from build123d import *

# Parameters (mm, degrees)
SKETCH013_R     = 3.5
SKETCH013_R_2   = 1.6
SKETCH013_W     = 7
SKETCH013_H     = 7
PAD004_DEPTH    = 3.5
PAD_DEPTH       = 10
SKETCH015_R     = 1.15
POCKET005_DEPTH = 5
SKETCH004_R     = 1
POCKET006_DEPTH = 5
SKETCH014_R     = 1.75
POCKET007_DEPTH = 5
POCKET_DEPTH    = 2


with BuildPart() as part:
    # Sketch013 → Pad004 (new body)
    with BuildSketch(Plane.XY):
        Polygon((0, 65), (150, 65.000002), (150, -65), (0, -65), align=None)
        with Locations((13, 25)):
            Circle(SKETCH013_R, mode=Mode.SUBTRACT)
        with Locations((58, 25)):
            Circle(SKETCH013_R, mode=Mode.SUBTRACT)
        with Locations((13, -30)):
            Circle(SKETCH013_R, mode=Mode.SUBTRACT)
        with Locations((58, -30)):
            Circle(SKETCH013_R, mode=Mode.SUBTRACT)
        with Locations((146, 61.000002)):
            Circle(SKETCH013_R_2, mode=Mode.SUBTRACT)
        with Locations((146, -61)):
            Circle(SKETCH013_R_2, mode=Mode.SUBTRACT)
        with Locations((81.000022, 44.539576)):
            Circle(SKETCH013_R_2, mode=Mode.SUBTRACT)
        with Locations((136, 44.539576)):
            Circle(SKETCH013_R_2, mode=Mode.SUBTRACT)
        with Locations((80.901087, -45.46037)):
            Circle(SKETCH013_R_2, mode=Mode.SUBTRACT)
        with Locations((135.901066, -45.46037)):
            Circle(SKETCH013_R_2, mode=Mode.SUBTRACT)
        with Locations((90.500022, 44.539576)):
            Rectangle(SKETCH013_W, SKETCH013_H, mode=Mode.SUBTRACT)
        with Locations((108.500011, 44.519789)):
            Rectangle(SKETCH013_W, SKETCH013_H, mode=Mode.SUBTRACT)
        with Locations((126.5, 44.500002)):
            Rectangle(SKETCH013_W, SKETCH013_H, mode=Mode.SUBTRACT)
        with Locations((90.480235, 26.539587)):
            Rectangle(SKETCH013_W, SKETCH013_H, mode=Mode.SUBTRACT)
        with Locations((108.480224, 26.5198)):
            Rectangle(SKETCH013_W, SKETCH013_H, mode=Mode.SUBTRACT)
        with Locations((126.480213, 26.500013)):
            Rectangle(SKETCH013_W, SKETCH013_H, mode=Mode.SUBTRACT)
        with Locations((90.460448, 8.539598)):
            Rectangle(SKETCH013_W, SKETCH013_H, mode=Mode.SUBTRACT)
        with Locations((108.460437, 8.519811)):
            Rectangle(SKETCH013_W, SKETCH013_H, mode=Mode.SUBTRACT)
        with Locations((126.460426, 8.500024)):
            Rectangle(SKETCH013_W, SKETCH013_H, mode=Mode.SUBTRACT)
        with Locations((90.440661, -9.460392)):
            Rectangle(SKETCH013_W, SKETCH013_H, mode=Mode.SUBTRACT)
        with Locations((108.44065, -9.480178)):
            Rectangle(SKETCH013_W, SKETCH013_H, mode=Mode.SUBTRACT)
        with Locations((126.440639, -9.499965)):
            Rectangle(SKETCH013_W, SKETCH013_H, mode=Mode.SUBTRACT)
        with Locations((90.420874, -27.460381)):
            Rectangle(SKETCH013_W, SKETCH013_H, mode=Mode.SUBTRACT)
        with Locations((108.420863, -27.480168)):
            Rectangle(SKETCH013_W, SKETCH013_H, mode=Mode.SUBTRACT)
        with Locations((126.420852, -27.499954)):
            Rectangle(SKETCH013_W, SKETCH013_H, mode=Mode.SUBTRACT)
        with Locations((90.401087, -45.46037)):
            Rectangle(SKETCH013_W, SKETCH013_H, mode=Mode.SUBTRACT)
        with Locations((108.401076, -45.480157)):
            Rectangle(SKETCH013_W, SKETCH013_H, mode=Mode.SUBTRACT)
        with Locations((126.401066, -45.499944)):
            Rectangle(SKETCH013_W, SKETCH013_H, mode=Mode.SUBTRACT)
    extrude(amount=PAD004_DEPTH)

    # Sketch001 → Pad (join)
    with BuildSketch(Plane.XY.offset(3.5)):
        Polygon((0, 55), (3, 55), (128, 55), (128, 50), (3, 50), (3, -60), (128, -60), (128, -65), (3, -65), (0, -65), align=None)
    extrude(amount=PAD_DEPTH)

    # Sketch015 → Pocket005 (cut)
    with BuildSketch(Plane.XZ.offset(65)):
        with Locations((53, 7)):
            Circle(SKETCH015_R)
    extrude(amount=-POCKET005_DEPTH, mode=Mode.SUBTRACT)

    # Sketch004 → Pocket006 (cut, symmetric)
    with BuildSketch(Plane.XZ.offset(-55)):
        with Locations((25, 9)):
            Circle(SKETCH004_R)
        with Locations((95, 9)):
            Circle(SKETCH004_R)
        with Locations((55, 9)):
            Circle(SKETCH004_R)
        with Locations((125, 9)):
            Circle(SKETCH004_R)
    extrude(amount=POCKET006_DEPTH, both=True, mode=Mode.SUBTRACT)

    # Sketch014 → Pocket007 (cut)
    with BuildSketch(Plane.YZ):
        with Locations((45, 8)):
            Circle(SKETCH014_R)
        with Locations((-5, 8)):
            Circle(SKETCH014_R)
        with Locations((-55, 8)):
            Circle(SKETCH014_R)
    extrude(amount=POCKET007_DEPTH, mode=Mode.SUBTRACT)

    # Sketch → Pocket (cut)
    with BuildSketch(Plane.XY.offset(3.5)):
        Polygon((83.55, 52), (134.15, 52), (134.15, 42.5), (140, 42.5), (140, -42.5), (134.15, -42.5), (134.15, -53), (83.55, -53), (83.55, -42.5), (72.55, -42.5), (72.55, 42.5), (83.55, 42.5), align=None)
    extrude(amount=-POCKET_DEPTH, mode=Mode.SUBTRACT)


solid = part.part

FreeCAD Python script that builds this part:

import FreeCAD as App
import Part
import Sketcher

V = App.Vector


def add_polygon(sketch, points):
    """Adds a closed chain of lines whose ends are joined by coincident constraints."""
    first, n = sketch.GeometryCount, len(points)
    for a, b in zip(points, points[1:] + points[:1]):
        sketch.addGeometry(Part.LineSegment(App.Vector(*a, 0), App.Vector(*b, 0)), False)
    for i in range(n):
        sketch.addConstraint(Sketcher.Constraint("Coincident", first + i, 2, first + (i + 1) % n, 1))

doc = App.newDocument("Part")
params = doc.addObject("Spreadsheet::Sheet", "Params")
for row, (alias, value) in enumerate([
    ("sketch1_diameter", "7 mm"),
    ("sketch1_diameter2", "3.2 mm"),
    ("sketch1_width", "150 mm"),
    ("sketch1_width2", "7 mm"),
    ("sketch1_height", "130 mm"),
    ("pad1_length", "3.5 mm"),
    ("sketch2_width", "128 mm"),
    ("sketch2_width2", "125 mm"),
    ("sketch2_height", "120 mm"),
    ("sketch2_height2", "5 mm"),
    ("pad2_length", "10 mm"),
    ("sketch3_diameter", "2.3 mm"),
    ("pocket1_length", "5 mm"),
    ("sketch4_diameter", "2 mm"),
    ("pocket2_length", "10 mm"),
    ("sketch5_diameter", "3.5 mm"),
    ("pocket3_length", "5 mm"),
    ("sketch6_width", "11 mm"),
    ("sketch6_height", "85 mm"),
    ("sketch6_width2", "50.6 mm"),
    ("sketch6_height2", "9.5 mm"),
    ("sketch6_height3", "10.5 mm"),
    ("pocket4_length", "2 mm"),
], start=1):
    params.set(f"A{row}", alias)
    params.set(f"B{row}", "=" + value)
    params.setAlias(f"B{row}", alias)

body = doc.addObject("PartDesign::Body", "Body")

# Sketch on XY plane
sketch1 = body.newObject("Sketcher::SketchObject", "Sketch")
sketch1.AttachmentSupport = (doc.getObject("XY_Plane"), [""])
sketch1.MapMode = "FlatFace"
add_polygon(sketch1, [(150, 65), (0, 65), (0, -65), (150, -65)])  # lines 0-3
sketch1.addGeometry(Part.Circle(V(146, -61, 0), V(0, 0, 1), 1.6), False)  # 4
sketch1.addGeometry(Part.Circle(V(135.9, -45.5, 0), V(0, 0, 1), 1.6), False)  # 5
add_polygon(sketch1, [(122.9, -49), (122.9, -42), (129.9, -42), (129.9, -49)])  # lines 6-9
add_polygon(sketch1, [(104.9, -49), (104.9, -42), (111.9, -42), (111.9, -49)])  # lines 10-13
add_polygon(sketch1, [(86.9, -49), (86.9, -42), (93.9, -42), (93.9, -49)])  # lines 14-17
sketch1.addGeometry(Part.Circle(V(80.9, -45.5, 0), V(0, 0, 1), 1.6), False)  # 18
add_polygon(sketch1, [(122.9, -31), (122.9, -24), (129.9, -24), (129.9, -31)])  # lines 19-22
add_polygon(sketch1, [(122.9, -13), (122.9, -6), (129.9, -6), (129.9, -13)])  # lines 23-26
add_polygon(sketch1, [(104.9, -31), (104.9, -24), (111.9, -24), (111.9, -31)])  # lines 27-30
add_polygon(sketch1, [(86.9, -31), (86.9, -24), (93.9, -24), (93.9, -31)])  # lines 31-34
add_polygon(sketch1, [(104.9, -13), (104.9, -6), (111.9, -6), (111.9, -13)])  # lines 35-38
add_polygon(sketch1, [(86.9, -13), (86.9, -6), (93.9, -6), (93.9, -13)])  # lines 39-42
sketch1.addGeometry(Part.Circle(V(58, -30, 0), V(0, 0, 1), 3.5), False)  # 43
sketch1.addGeometry(Part.Circle(V(13, -30, 0), V(0, 0, 1), 3.5), False)  # 44
add_polygon(sketch1, [(123, 5), (123, 12), (130, 12), (130, 5)])  # lines 45-48
add_polygon(sketch1, [(123, 23), (123, 30), (130, 30), (130, 23)])  # lines 49-52
add_polygon(sketch1, [(105, 5), (105, 12), (112, 12), (112, 5)])  # lines 53-56
add_polygon(sketch1, [(87, 5), (87, 12), (94, 12), (94, 5)])  # lines 57-60
add_polygon(sketch1, [(105, 23), (105, 30), (112, 30), (112, 23)])  # lines 61-64
add_polygon(sketch1, [(87, 23), (87, 30), (94, 30), (94, 23)])  # lines 65-68
sketch1.addGeometry(Part.Circle(V(136, 44.5, 0), V(0, 0, 1), 1.6), False)  # 69
add_polygon(sketch1, [(123, 41), (123, 48), (130, 48), (130, 41)])  # lines 70-73
sketch1.addGeometry(Part.Circle(V(146, 61, 0), V(0, 0, 1), 1.6), False)  # 74
add_polygon(sketch1, [(105, 41), (105, 48), (112, 48), (112, 41)])  # lines 75-78
add_polygon(sketch1, [(87, 41), (87, 48), (94, 48), (94, 41)])  # lines 79-82
sketch1.addGeometry(Part.Circle(V(81, 44.5, 0), V(0, 0, 1), 1.6), False)  # 83
sketch1.addGeometry(Part.Circle(V(58, 25, 0), V(0, 0, 1), 3.5), False)  # 84
sketch1.addGeometry(Part.Circle(V(13, 25, 0), V(0, 0, 1), 3.5), False)  # 85
sketch1.addConstraint([
    Sketcher.Constraint("Horizontal", 0),
    Sketcher.Constraint("Vertical", 1),
    Sketcher.Constraint("Horizontal", 2),
    Sketcher.Constraint("Vertical", 3),
    Sketcher.Constraint("Vertical", 6),
    Sketcher.Constraint("Horizontal", 7),
    Sketcher.Constraint("Vertical", 8),
    Sketcher.Constraint("Horizontal", 9),
    Sketcher.Constraint("Vertical", 10),
    Sketcher.Constraint("Horizontal", 11),
    Sketcher.Constraint("Vertical", 12),
    Sketcher.Constraint("Horizontal", 13),
    Sketcher.Constraint("Vertical", 14),
    Sketcher.Constraint("Horizontal", 15),
    Sketcher.Constraint("Vertical", 16),
    Sketcher.Constraint("Horizontal", 17),
    Sketcher.Constraint("Vertical", 19),
    Sketcher.Constraint("Horizontal", 20),
    Sketcher.Constraint("Vertical", 21),
    Sketcher.Constraint("Horizontal", 22),
    Sketcher.Constraint("Vertical", 23),
    Sketcher.Constraint("Horizontal", 24),
    Sketcher.Constraint("Vertical", 25),
    Sketcher.Constraint("Horizontal", 26),
    Sketcher.Constraint("Vertical", 27),
    Sketcher.Constraint("Horizontal", 28),
    Sketcher.Constraint("Vertical", 29),
    Sketcher.Constraint("Horizontal", 30),
    Sketcher.Constraint("Vertical", 31),
    Sketcher.Constraint("Horizontal", 32),
    Sketcher.Constraint("Vertical", 33),
    Sketcher.Constraint("Horizontal", 34),
    Sketcher.Constraint("Vertical", 35),
    Sketcher.Constraint("Horizontal", 36),
    Sketcher.Constraint("Vertical", 37),
    Sketcher.Constraint("Horizontal", 38),
    Sketcher.Constraint("Vertical", 39),
    Sketcher.Constraint("Horizontal", 40),
    Sketcher.Constraint("Vertical", 41),
    Sketcher.Constraint("Horizontal", 42),
    Sketcher.Constraint("Vertical", 45),
    Sketcher.Constraint("Horizontal", 46),
    Sketcher.Constraint("Vertical", 47),
    Sketcher.Constraint("Horizontal", 48),
    Sketcher.Constraint("Vertical", 49),
    Sketcher.Constraint("Horizontal", 50),
    Sketcher.Constraint("Vertical", 51),
    Sketcher.Constraint("Horizontal", 52),
    Sketcher.Constraint("Vertical", 53),
    Sketcher.Constraint("Horizontal", 54),
    Sketcher.Constraint("Vertical", 55),
    Sketcher.Constraint("Horizontal", 56),
    Sketcher.Constraint("Vertical", 57),
    Sketcher.Constraint("Horizontal", 58),
    Sketcher.Constraint("Vertical", 59),
    Sketcher.Constraint("Horizontal", 60),
    Sketcher.Constraint("Vertical", 61),
    Sketcher.Constraint("Horizontal", 62),
    Sketcher.Constraint("Vertical", 63),
    Sketcher.Constraint("Horizontal", 64),
    Sketcher.Constraint("Vertical", 65),
    Sketcher.Constraint("Horizontal", 66),
    Sketcher.Constraint("Vertical", 67),
    Sketcher.Constraint("Horizontal", 68),
    Sketcher.Constraint("Vertical", 70),
    Sketcher.Constraint("Horizontal", 71),
    Sketcher.Constraint("Vertical", 72),
    Sketcher.Constraint("Horizontal", 73),
    Sketcher.Constraint("Vertical", 75),
    Sketcher.Constraint("Horizontal", 76),
    Sketcher.Constraint("Vertical", 77),
    Sketcher.Constraint("Horizontal", 78),
    Sketcher.Constraint("Vertical", 79),
    Sketcher.Constraint("Horizontal", 80),
    Sketcher.Constraint("Vertical", 81),
    Sketcher.Constraint("Horizontal", 82),
    Sketcher.Constraint("Equal", 4, 5),
    Sketcher.Constraint("Equal", 5, 18),
    Sketcher.Constraint("Equal", 43, 44),
    Sketcher.Constraint("Equal", 18, 69),
    Sketcher.Constraint("Equal", 69, 74),
    Sketcher.Constraint("Equal", 74, 83),
    Sketcher.Constraint("Equal", 44, 84),
    Sketcher.Constraint("Equal", 84, 85),
    Sketcher.Constraint("Symmetric", 0, 2, 1, 2, -1, 1),
    Sketcher.Constraint("Symmetric", 4, 3, 74, 3, -1),
    Sketcher.Constraint("Horizontal", 5, 3, 18, 3),
    Sketcher.Constraint("Horizontal", 43, 3, 44, 3),
    Sketcher.Constraint("Horizontal", 69, 3, 83, 3),
    Sketcher.Constraint("Horizontal", 84, 3, 85, 3),
    Sketcher.Constraint("Vertical", 43, 3, 84, 3),
    Sketcher.Constraint("Vertical", 44, 3, 85, 3),
    Sketcher.Constraint("Equal", 9, 11),
    Sketcher.Constraint("Equal", 13, 15),
    Sketcher.Constraint("Equal", 17, 20),
    Sketcher.Constraint("Equal", 22, 24),
    Sketcher.Constraint("Equal", 26, 28),
    Sketcher.Constraint("Equal", 30, 32),
    Sketcher.Constraint("Equal", 34, 36),
    Sketcher.Constraint("Equal", 38, 40),
    Sketcher.Constraint("Equal", 42, 46),
    Sketcher.Constraint("Equal", 48, 50),
    Sketcher.Constraint("Equal", 52, 54),
    Sketcher.Constraint("Equal", 56, 58),
    Sketcher.Constraint("Equal", 60, 62),
    Sketcher.Constraint("Equal", 64, 66),
    Sketcher.Constraint("Equal", 68, 71),
    Sketcher.Constraint("Equal", 73, 76),
    Sketcher.Constraint("Equal", 78, 80),
    Sketcher.Constraint("Equal", 82, 6),
    Sketcher.Constraint("Equal", 8, 10),
    Sketcher.Constraint("Equal", 12, 14),
    Sketcher.Constraint("Equal", 16, 19),
    Sketcher.Constraint("Equal", 21, 23),
    Sketcher.Constraint("Equal", 25, 27),
    Sketcher.Constraint("Equal", 29, 31),
    Sketcher.Constraint("Equal", 33, 35),
    Sketcher.Constraint("Equal", 37, 39),
    Sketcher.Constraint("Equal", 41, 45),
    Sketcher.Constraint("Equal", 47, 49),
    Sketcher.Constraint("Equal", 51, 53),
    Sketcher.Constraint("Equal", 55, 57),
    Sketcher.Constraint("Equal", 59, 61),
    Sketcher.Constraint("Equal", 63, 65),
    Sketcher.Constraint("Equal", 67, 70),
    Sketcher.Constraint("Equal", 72, 75),
    Sketcher.Constraint("Equal", 77, 79),
    Sketcher.Constraint("Diameter", 43, 7.0),
    Sketcher.Constraint("Diameter", 4, 3.2),
    Sketcher.Constraint("DistanceX", 0, 2, 0, 1, 150.0),
    Sketcher.Constraint("DistanceX", 7, 1, 7, 2, 7.0),
    Sketcher.Constraint("DistanceY", 1, 2, 1, 1, 130.0),
    Sketcher.Constraint("DistanceX", -1, 1, 4, 3, 146.0),
    Sketcher.Constraint("DistanceY", 4, 3, -1, 1, 61.0),
    Sketcher.Constraint("DistanceX", -1, 1, 43, 3, 58.0),
    Sketcher.Constraint("DistanceY", 43, 3, -1, 1, 30.0),
    Sketcher.Constraint("DistanceX", -1, 1, 44, 3, 13.0),
    Sketcher.Constraint("DistanceX", -1, 1, 69, 3, 136.0),
    Sketcher.Constraint("DistanceY", -1, 1, 84, 3, 25.0),
    Sketcher.Constraint("DistanceX", -1, 1, 70, 2, 123.0),
    Sketcher.Constraint("DistanceY", -1, 1, 61, 2, 30.0198),
    Sketcher.Constraint("DistanceY", 5, 3, -1, 1, 45.46037),
    Sketcher.Constraint("DistanceX", -1, 1, 83, 3, 81.000022),
    Sketcher.Constraint("DistanceY", 14, 2, -1, 1, 41.96037),
    Sketcher.Constraint("DistanceX", -1, 1, 19, 2, 122.920852),
    Sketcher.Constraint("DistanceX", -1, 1, 23, 2, 122.940639),
    Sketcher.Constraint("DistanceY", 31, 2, -1, 1, 23.960381),
    Sketcher.Constraint("DistanceX", -1, 1, 35, 2, 104.94065),
    Sketcher.Constraint("DistanceY", 35, 2, -1, 1, 5.980178),
    Sketcher.Constraint("DistanceX", -1, 1, 39, 2, 86.940661),
    Sketcher.Constraint("DistanceY", 39, 2, -1, 1, 5.960392),
    Sketcher.Constraint("DistanceY", -1, 1, 53, 2, 12.019811),
    Sketcher.Constraint("DistanceX", -1, 1, 57, 2, 86.960448),
    Sketcher.Constraint("DistanceX", -1, 1, 75, 2, 105.000011),
    Sketcher.Constraint("DistanceY", -1, 1, 75, 2, 48.019789),
    Sketcher.Constraint("DistanceX", -1, 1, 79, 2, 87.000022),
    Sketcher.Constraint("DistanceX", -1, 1, 5, 3, 135.901066),
    Sketcher.Constraint("DistanceX", -1, 1, 18, 3, 80.901087),
    Sketcher.Constraint("DistanceY", -1, 1, 69, 3, 44.539576),
    Sketcher.Constraint("DistanceX", -1, 1, 6, 2, 122.901066),
    Sketcher.Constraint("DistanceY", 6, 2, -1, 1, 41.999944),
    Sketcher.Constraint("DistanceX", -1, 1, 10, 2, 104.901076),
    Sketcher.Constraint("DistanceY", 10, 2, -1, 1, 41.980157),
    Sketcher.Constraint("DistanceX", -1, 1, 14, 2, 86.901087),
    Sketcher.Constraint("DistanceY", 19, 2, -1, 1, 23.999954),
    Sketcher.Constraint("DistanceY", 23, 2, -1, 1, 5.999965),
    Sketcher.Constraint("DistanceX", -1, 1, 27, 2, 104.920863),
    Sketcher.Constraint("DistanceY", 27, 2, -1, 1, 23.980168),
    Sketcher.Constraint("DistanceX", -1, 1, 31, 2, 86.920874),
    Sketcher.Constraint("DistanceX", -1, 1, 45, 2, 122.960426),
    Sketcher.Constraint("DistanceY", -1, 1, 45, 2, 12.000024),
    Sketcher.Constraint("DistanceX", -1, 1, 49, 2, 122.980213),
    Sketcher.Constraint("DistanceY", -1, 1, 49, 2, 30.000013),
    Sketcher.Constraint("DistanceX", -1, 1, 53, 2, 104.960437),
    Sketcher.Constraint("DistanceY", -1, 1, 57, 2, 12.039598),
    Sketcher.Constraint("DistanceX", -1, 1, 61, 2, 104.980224),
    Sketcher.Constraint("DistanceX", -1, 1, 65, 2, 86.980235),
    Sketcher.Constraint("DistanceY", -1, 1, 65, 2, 30.039587),
    Sketcher.Constraint("DistanceY", -1, 1, 70, 2, 48.000002),
    Sketcher.Constraint("DistanceY", -1, 1, 79, 2, 48.039576),
])
sketch1.setExpression("Constraints[203]", "Params.sketch1_diameter")
sketch1.setExpression("Constraints[204]", "Params.sketch1_diameter2")
sketch1.setExpression("Constraints[205]", "Params.sketch1_width")
sketch1.setExpression("Constraints[206]", "Params.sketch1_width2")
sketch1.setExpression("Constraints[207]", "Params.sketch1_height")
pad1 = body.newObject("PartDesign::Pad", "Pad")
pad1.Profile = sketch1
pad1.setExpression("Length", "Params.pad1_length")

# Sketch on XY plane
sketch2 = body.newObject("Sketcher::SketchObject", "Sketch001")
sketch2.AttachmentSupport = (doc.getObject("XY_Plane"), [""])
sketch2.MapMode = "FlatFace"
sketch2.AttachmentOffset = App.Placement(V(0, 0, 3.5), App.Rotation())
add_polygon(sketch2, [(128, 55), (0, 55), (0, -65), (128, -65), (128, -60), (3, -60), (3, 50), (128, 50)])  # lines 0-7
sketch2.addConstraint([
    Sketcher.Constraint("Horizontal", 0),
    Sketcher.Constraint("Vertical", 1),
    Sketcher.Constraint("Horizontal", 2),
    Sketcher.Constraint("Vertical", 3),
    Sketcher.Constraint("Horizontal", 4),
    Sketcher.Constraint("Vertical", 5),
    Sketcher.Constraint("Horizontal", 6),
    Sketcher.Constraint("Vertical", 7),
    Sketcher.Constraint("PointOnObject", 0, 2, -2),
    Sketcher.Constraint("Vertical", 3, 2, 6, 2),
    Sketcher.Constraint("Equal", 3, 7),
    Sketcher.Constraint("DistanceX", 0, 2, 0, 1, 128.0),
    Sketcher.Constraint("DistanceX", 4, 2, 4, 1, 125.0),
    Sketcher.Constraint("DistanceY", 1, 2, 1, 1, 120.0),
    Sketcher.Constraint("DistanceY", 3, 1, 3, 2, 5.0),
    Sketcher.Constraint("DistanceY", -1, 1, 0, 2, 55.0),
])
sketch2.setExpression("Constraints[19]", "Params.sketch2_width")
sketch2.setExpression("Constraints[20]", "Params.sketch2_width2")
sketch2.setExpression("Constraints[21]", "Params.sketch2_height")
sketch2.setExpression("Constraints[22]", "Params.sketch2_height2")
pad2 = body.newObject("PartDesign::Pad", "Pad001")
pad2.Profile = sketch2
pad2.setExpression("Length", "Params.pad2_length")

# Sketch on XZ plane
sketch3 = body.newObject("Sketcher::SketchObject", "Sketch002")
sketch3.AttachmentSupport = (doc.getObject("XZ_Plane"), [""])
sketch3.MapMode = "FlatFace"
sketch3.AttachmentOffset = App.Placement(V(0, 0, 65), App.Rotation())
sketch3.addGeometry(Part.Circle(V(53, 7, 0), V(0, 0, 1), 1.1), False)
sketch3.addConstraint([
    Sketcher.Constraint("Diameter", 0, 2.3),
    Sketcher.Constraint("DistanceX", -1, 1, 0, 3, 53.0),
    Sketcher.Constraint("DistanceY", -1, 1, 0, 3, 7.0),
])
sketch3.setExpression("Constraints[0]", "Params.sketch3_diameter")
pocket1 = body.newObject("PartDesign::Pocket", "Pocket")
pocket1.Profile = sketch3
pocket1.setExpression("Length", "Params.pocket1_length")

# Sketch on XZ plane
sketch4 = body.newObject("Sketcher::SketchObject", "Sketch003")
sketch4.AttachmentSupport = (doc.getObject("XZ_Plane"), [""])
sketch4.MapMode = "FlatFace"
sketch4.AttachmentOffset = App.Placement(V(0, 0, -55), App.Rotation())
sketch4.addGeometry([
    Part.Circle(V(25, 9, 0), V(0, 0, 1), 1),
    Part.Circle(V(95, 9, 0), V(0, 0, 1), 1),
    Part.Circle(V(55, 9, 0), V(0, 0, 1), 1),
    Part.Circle(V(125, 9, 0), V(0, 0, 1), 1),
], False)
sketch4.addConstraint([
    Sketcher.Constraint("Equal", 0, 1),
    Sketcher.Constraint("Equal", 1, 2),
    Sketcher.Constraint("Equal", 2, 3),
    Sketcher.Constraint("Horizontal", 0, 3, 1, 3),
    Sketcher.Constraint("Horizontal", 1, 3, 2, 3),
    Sketcher.Constraint("Horizontal", 2, 3, 3, 3),
    Sketcher.Constraint("Diameter", 0, 2.0),
    Sketcher.Constraint("DistanceX", -1, 1, 0, 3, 25.0),
    Sketcher.Constraint("DistanceY", -1, 1, 0, 3, 9.0),
    Sketcher.Constraint("DistanceX", -1, 1, 1, 3, 95.0),
    Sketcher.Constraint("DistanceX", -1, 1, 2, 3, 55.0),
    Sketcher.Constraint("DistanceX", -1, 1, 3, 3, 125.0),
])
sketch4.setExpression("Constraints[6]", "Params.sketch4_diameter")
pocket2 = body.newObject("PartDesign::Pocket", "Pocket001")
pocket2.Profile = sketch4
pocket2.setExpression("Length", "Params.pocket2_length")
pocket2.Midplane = True

# Sketch on YZ plane
sketch5 = body.newObject("Sketcher::SketchObject", "Sketch004")
sketch5.AttachmentSupport = (doc.getObject("YZ_Plane"), [""])
sketch5.MapMode = "FlatFace"
sketch5.addGeometry([
    Part.Circle(V(45, 8, 0), V(0, 0, 1), 1.8),
    Part.Circle(V(-5, 8, 0), V(0, 0, 1), 1.8),
    Part.Circle(V(-55, 8, 0), V(0, 0, 1), 1.8),
], False)
sketch5.addConstraint([
    Sketcher.Constraint("Equal", 0, 1),
    Sketcher.Constraint("Equal", 1, 2),
    Sketcher.Constraint("Horizontal", 0, 3, 1, 3),
    Sketcher.Constraint("Horizontal", 1, 3, 2, 3),
    Sketcher.Constraint("Diameter", 0, 3.5),
    Sketcher.Constraint("DistanceX", -1, 1, 0, 3, 45.0),
    Sketcher.Constraint("DistanceY", -1, 1, 0, 3, 8.0),
    Sketcher.Constraint("DistanceX", 1, 3, -1, 1, 5.0),
    Sketcher.Constraint("DistanceX", 2, 3, -1, 1, 55.0),
])
sketch5.setExpression("Constraints[4]", "Params.sketch5_diameter")
pocket3 = body.newObject("PartDesign::Pocket", "Pocket002")
pocket3.Profile = sketch5
pocket3.setExpression("Length", "Params.pocket3_length")
pocket3.Reversed = True

# Sketch on XY plane
sketch6 = body.newObject("Sketcher::SketchObject", "Sketch005")
sketch6.AttachmentSupport = (doc.getObject("XY_Plane"), [""])
sketch6.MapMode = "FlatFace"
sketch6.AttachmentOffset = App.Placement(V(0, 0, 3.5), App.Rotation())
add_polygon(sketch6, [(134, 52), (84, 52), (84, 42), (73, 42), (73, -42), (84, -42), (84, -53), (134, -53), (134, -42), (140, -42), (140, 42), (134, 42)])  # lines 0-11
sketch6.addConstraint([
    Sketcher.Constraint("Horizontal", 0),
    Sketcher.Constraint("Vertical", 1),
    Sketcher.Constraint("Horizontal", 2),
    Sketcher.Constraint("Vertical", 3),
    Sketcher.Constraint("Horizontal", 4),
    Sketcher.Constraint("Vertical", 5),
    Sketcher.Constraint("Horizontal", 6),
    Sketcher.Constraint("Vertical", 7),
    Sketcher.Constraint("Horizontal", 8),
    Sketcher.Constraint("Vertical", 9),
    Sketcher.Constraint("Horizontal", 10),
    Sketcher.Constraint("Vertical", 11),
    Sketcher.Constraint("Symmetric", 1, 2, 4, 2, -1),
    Sketcher.Constraint("Symmetric", 7, 2, 10, 2, -1),
    Sketcher.Constraint("Horizontal", 4, 2, 7, 2),
    Sketcher.Constraint("DistanceX", 2, 2, 2, 1, 11.0),
    Sketcher.Constraint("DistanceY", 3, 2, 3, 1, 85.0),
    Sketcher.Constraint("DistanceX", 0, 2, 0, 1, 50.6),
    Sketcher.Constraint("DistanceY", 1, 2, 1, 1, 9.5),
    Sketcher.Constraint("DistanceY", 5, 2, 5, 1, 10.5),
    Sketcher.Constraint("DistanceX", -1, 1, 8, 2, 140.0),
    Sketcher.Constraint("DistanceX", 8, 1, 8, 2, 5.85),
])
sketch6.setExpression("Constraints[27]", "Params.sketch6_width")
sketch6.setExpression("Constraints[28]", "Params.sketch6_height")
sketch6.setExpression("Constraints[29]", "Params.sketch6_width2")
sketch6.setExpression("Constraints[30]", "Params.sketch6_height2")
sketch6.setExpression("Constraints[31]", "Params.sketch6_height3")
pocket4 = body.newObject("PartDesign::Pocket", "Pocket003")
pocket4.Profile = sketch6
pocket4.setExpression("Length", "Params.pocket4_length")

doc.recompute()
